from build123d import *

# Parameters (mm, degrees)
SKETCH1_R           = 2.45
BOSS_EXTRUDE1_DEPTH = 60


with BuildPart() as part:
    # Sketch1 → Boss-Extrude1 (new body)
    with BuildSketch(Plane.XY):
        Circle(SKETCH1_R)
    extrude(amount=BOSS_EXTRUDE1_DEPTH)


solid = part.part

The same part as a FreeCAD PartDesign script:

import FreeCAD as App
import Part
import Sketcher

doc = App.newDocument("Part")
params = doc.addObject("Spreadsheet::Sheet", "Params")
for row, (alias, value) in enumerate([
    ("sketch1_diameter", "4.9 mm"),
    ("pad1_length", "60 mm"),
], start=1):
    params.set(f"A{row}", alias)
    params.set(f"B{row}", "=" + value)
    params.setAlias(f"B{row}", alias)

body = doc.addObject("PartDesign::Body", "Body")

sketch1 = doc.addObject("Sketcher::SketchObject", "Sketch")
body.addObject(sketch1)
sketch1.AttachmentSupport = (doc.XY_Plane, [""])
sketch1.MapMode = "FlatFace"
sketch1.addGeometry(Part.Circle(App.Vector(0, 0, 0), App.Vector(0, 0, 1), 2.45), False)
sketch1.addConstraint([
    Sketcher.Constraint("Coincident", 0, 3, -1, 1),
    Sketcher.Constraint("Diameter", 0, 4.9),
])
sketch1.setExpression("Constraints[1]", "Params.sketch1_diameter")
pad1 = doc.addObject("PartDesign::Pad", "Pad")
body.addObject(pad1)
pad1.Profile = sketch1
pad1.setExpression("Length", "Params.pad1_length")

doc.recompute()
